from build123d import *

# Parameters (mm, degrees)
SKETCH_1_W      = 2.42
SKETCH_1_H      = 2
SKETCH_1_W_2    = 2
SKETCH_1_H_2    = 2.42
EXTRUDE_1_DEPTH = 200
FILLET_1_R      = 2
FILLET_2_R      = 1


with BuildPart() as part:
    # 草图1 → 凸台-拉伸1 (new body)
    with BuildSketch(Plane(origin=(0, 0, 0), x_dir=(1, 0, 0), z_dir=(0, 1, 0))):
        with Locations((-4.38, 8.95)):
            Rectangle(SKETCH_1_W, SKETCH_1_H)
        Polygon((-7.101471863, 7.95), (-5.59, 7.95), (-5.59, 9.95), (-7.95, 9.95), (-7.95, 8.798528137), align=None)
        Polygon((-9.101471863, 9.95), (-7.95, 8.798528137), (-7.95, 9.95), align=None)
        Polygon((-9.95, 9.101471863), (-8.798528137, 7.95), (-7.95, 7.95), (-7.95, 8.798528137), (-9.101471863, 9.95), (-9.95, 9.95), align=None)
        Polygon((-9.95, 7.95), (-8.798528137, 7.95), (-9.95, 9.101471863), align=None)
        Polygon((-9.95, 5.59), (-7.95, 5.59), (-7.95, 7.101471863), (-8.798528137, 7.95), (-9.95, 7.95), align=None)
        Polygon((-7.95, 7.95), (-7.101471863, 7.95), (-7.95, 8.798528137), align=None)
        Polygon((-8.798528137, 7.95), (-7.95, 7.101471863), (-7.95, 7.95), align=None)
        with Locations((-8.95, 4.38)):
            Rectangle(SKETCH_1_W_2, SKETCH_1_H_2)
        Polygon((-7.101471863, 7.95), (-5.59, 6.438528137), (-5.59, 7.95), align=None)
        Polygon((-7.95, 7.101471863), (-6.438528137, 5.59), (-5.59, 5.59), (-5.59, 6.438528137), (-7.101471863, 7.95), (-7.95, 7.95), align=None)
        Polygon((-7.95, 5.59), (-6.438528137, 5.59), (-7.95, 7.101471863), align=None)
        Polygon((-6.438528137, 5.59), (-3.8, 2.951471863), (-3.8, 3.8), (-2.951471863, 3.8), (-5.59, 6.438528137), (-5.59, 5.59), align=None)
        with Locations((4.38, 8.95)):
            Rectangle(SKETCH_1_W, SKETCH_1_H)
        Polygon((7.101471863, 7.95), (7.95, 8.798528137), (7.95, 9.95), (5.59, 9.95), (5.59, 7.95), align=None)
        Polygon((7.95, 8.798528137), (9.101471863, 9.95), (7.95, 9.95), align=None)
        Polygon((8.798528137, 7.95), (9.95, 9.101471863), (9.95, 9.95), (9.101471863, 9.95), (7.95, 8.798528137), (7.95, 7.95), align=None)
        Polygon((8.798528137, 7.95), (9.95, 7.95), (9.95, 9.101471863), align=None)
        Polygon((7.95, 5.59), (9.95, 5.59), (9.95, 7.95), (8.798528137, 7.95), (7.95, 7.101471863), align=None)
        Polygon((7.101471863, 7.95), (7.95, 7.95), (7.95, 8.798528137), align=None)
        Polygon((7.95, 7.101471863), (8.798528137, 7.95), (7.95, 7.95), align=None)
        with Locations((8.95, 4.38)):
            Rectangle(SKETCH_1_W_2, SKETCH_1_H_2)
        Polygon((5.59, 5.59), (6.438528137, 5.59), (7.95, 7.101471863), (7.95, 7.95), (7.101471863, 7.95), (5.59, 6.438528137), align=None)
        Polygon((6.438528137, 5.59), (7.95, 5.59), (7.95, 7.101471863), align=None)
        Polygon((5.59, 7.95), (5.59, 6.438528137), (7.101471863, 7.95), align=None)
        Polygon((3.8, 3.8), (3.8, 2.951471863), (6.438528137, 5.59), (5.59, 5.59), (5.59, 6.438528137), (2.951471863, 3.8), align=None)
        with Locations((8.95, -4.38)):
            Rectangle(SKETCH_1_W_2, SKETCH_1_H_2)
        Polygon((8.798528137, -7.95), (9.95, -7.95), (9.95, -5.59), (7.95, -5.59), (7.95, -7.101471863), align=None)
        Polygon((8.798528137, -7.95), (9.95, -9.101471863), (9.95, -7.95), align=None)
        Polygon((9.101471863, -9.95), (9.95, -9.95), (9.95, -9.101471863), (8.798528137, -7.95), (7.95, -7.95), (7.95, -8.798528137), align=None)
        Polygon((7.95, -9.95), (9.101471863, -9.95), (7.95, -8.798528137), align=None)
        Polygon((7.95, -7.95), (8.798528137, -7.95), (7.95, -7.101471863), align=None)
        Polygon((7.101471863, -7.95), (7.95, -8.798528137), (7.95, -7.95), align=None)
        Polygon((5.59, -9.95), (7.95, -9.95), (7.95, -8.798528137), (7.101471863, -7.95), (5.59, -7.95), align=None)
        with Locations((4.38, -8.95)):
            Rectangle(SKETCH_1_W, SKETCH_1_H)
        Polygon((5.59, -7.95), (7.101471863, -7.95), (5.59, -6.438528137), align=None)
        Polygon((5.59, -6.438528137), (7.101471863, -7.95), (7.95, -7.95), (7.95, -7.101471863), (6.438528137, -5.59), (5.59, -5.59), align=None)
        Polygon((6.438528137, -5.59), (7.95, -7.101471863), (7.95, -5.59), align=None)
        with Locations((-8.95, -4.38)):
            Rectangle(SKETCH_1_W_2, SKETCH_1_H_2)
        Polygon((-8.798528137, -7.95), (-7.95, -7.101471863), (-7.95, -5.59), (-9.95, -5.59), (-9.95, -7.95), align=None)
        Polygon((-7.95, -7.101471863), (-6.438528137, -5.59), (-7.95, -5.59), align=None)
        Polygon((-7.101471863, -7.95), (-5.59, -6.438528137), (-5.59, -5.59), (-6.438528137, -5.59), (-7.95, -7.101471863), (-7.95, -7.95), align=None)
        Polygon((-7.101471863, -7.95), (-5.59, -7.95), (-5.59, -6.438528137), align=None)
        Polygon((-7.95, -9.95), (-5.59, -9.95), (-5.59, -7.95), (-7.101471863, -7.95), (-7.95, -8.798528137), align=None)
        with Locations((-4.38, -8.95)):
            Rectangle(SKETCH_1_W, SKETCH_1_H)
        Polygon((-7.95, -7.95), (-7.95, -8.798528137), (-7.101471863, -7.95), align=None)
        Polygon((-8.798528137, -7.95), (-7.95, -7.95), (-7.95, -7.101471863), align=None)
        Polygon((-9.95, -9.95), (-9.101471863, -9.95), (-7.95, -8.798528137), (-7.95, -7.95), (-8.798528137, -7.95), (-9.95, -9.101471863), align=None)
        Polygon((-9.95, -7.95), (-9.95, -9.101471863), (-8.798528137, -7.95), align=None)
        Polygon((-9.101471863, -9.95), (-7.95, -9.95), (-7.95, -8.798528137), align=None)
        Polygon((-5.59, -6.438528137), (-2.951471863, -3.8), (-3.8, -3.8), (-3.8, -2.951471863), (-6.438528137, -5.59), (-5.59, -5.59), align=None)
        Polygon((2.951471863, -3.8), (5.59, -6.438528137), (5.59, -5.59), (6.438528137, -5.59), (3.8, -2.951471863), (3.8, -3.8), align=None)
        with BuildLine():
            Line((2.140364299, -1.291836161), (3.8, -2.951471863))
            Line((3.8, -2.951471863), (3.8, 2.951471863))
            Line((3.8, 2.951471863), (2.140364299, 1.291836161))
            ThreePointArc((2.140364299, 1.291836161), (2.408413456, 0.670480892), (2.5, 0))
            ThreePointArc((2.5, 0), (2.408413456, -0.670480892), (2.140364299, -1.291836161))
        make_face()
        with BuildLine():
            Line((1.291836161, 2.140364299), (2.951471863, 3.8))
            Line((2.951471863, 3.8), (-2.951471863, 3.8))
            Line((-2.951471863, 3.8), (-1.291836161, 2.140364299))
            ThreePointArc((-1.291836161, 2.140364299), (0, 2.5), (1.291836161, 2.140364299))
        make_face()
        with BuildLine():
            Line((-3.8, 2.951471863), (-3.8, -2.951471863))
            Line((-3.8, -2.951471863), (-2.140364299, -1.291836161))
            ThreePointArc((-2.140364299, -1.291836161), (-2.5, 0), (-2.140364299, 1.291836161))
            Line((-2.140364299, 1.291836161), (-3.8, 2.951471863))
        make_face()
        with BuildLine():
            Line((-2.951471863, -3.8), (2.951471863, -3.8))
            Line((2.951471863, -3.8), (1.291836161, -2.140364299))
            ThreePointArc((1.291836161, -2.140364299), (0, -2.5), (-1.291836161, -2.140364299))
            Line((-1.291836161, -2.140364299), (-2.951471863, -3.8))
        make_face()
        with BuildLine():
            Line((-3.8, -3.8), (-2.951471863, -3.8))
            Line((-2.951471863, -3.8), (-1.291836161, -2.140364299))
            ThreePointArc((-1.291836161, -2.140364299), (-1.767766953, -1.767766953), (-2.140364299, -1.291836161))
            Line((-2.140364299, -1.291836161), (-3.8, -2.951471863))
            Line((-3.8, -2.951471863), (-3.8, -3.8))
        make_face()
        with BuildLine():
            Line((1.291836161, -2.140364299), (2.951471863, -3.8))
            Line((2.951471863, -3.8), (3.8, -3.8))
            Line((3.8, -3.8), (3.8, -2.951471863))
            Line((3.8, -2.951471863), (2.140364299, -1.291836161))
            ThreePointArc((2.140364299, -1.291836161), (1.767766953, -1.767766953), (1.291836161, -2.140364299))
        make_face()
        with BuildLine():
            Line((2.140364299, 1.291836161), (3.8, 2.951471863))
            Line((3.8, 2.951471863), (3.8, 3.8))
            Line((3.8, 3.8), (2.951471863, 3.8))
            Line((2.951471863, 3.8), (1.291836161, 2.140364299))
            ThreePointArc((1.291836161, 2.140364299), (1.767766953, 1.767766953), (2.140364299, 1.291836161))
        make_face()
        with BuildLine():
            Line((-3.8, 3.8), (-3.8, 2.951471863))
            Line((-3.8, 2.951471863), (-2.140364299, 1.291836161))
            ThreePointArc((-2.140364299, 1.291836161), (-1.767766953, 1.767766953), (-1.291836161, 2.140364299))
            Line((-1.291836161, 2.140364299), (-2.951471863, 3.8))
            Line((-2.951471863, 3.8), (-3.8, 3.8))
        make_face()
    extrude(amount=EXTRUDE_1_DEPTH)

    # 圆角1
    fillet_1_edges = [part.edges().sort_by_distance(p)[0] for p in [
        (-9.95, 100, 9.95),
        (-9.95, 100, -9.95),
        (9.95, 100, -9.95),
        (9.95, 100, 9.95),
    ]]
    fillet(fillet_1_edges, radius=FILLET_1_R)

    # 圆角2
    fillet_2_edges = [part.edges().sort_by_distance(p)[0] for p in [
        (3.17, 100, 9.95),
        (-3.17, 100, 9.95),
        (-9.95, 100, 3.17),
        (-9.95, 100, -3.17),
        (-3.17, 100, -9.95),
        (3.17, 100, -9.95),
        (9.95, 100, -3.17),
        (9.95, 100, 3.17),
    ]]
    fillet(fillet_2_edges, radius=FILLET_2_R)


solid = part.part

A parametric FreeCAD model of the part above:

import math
import FreeCAD as App
import Part
import Sketcher
from FreeCAD import Vector


def edges_at(feature, points):
    """Names of the edges that pass closest to the given points."""
    edges = feature.Shape.Edges
    near = lambda p: min(range(len(edges)), key=lambda i: edges[i].distToShape(Part.Vertex(*p))[0])
    return sorted({f"Edge{near(p) + 1}" for p in points})

doc = App.newDocument("Part")
body = doc.addObject("PartDesign::Body", "Body")

# Sketch on XZ plane
sketch1 = body.newObject("Sketcher::SketchObject", "Sketch")
sketch1.AttachmentSupport = (doc.getObject("XZ_Plane"), [""])
sketch1.MapMode = "FlatFace"
sketch1.addGeometry([
    Part.LineSegment(Vector(-3.2, -8, 0), Vector(-3.2, -9.9, 0)),  # 0
    Part.LineSegment(Vector(-3.2, -9.9, 0), Vector(-9.9, -9.9, 0)),  # 1
    Part.LineSegment(Vector(-9.9, -9.9, 0), Vector(-9.9, -3.2, 0)),  # 2
    Part.LineSegment(Vector(-9.9, -3.2, 0), Vector(-8, -3.2, 0)),  # 3
    Part.LineSegment(Vector(-8, -3.2, 0), Vector(-8, -5.6, 0)),  # 4
    Part.LineSegment(Vector(-8, -5.6, 0), Vector(-6.4, -5.6, 0)),  # 5
    Part.LineSegment(Vector(-6.4, -5.6, 0), Vector(-3.8, -3, 0)),  # 6
    Part.LineSegment(Vector(-3.8, -3, 0), Vector(-3.8, 3, 0)),  # 7
    Part.LineSegment(Vector(-3.8, 3, 0), Vector(-6.4, 5.6, 0)),  # 8
    Part.LineSegment(Vector(-6.4, 5.6, 0), Vector(-8, 5.6, 0)),  # 9
    Part.LineSegment(Vector(-8, 5.6, 0), Vector(-8, 3.2, 0)),  # 10
    Part.LineSegment(Vector(-8, 3.2, 0), Vector(-9.9, 3.2, 0)),  # 11
    Part.LineSegment(Vector(-9.9, 3.2, 0), Vector(-9.9, 9.9, 0)),  # 12
    Part.LineSegment(Vector(-9.9, 9.9, 0), Vector(-3.2, 9.9, 0)),  # 13
    Part.LineSegment(Vector(-3.2, 9.9, 0), Vector(-3.2, 8, 0)),  # 14
    Part.LineSegment(Vector(-3.2, 8, 0), Vector(-5.6, 8, 0)),  # 15
    Part.LineSegment(Vector(-5.6, 8, 0), Vector(-5.6, 6.4, 0)),  # 16
    Part.LineSegment(Vector(-5.6, 6.4, 0), Vector(-3, 3.8, 0)),  # 17
    Part.LineSegment(Vector(-3, 3.8, 0), Vector(3, 3.8, 0)),  # 18
    Part.LineSegment(Vector(3, 3.8, 0), Vector(5.6, 6.4, 0)),  # 19
    Part.LineSegment(Vector(5.6, 6.4, 0), Vector(5.6, 8, 0)),  # 20
    Part.LineSegment(Vector(5.6, 8, 0), Vector(3.2, 8, 0)),  # 21
    Part.LineSegment(Vector(3.2, 8, 0), Vector(3.2, 9.9, 0)),  # 22
    Part.LineSegment(Vector(3.2, 9.9, 0), Vector(9.9, 9.9, 0)),  # 23
    Part.LineSegment(Vector(9.9, 9.9, 0), Vector(9.9, 3.2, 0)),  # 24
    Part.LineSegment(Vector(9.9, 3.2, 0), Vector(8, 3.2, 0)),  # 25
    Part.LineSegment(Vector(8, 3.2, 0), Vector(8, 5.6, 0)),  # 26
    Part.LineSegment(Vector(8, 5.6, 0), Vector(6.4, 5.6, 0)),  # 27
    Part.LineSegment(Vector(6.4, 5.6, 0), Vector(3.8, 3, 0)),  # 28
    Part.LineSegment(Vector(3.8, 3, 0), Vector(3.8, -3, 0)),  # 29
    Part.LineSegment(Vector(3.8, -3, 0), Vector(6.4, -5.6, 0)),  # 30
    Part.LineSegment(Vector(6.4, -5.6, 0), Vector(8, -5.6, 0)),  # 31
    Part.LineSegment(Vector(8, -5.6, 0), Vector(8, -3.2, 0)),  # 32
    Part.LineSegment(Vector(8, -3.2, 0), Vector(9.9, -3.2, 0)),  # 33
    Part.LineSegment(Vector(9.9, -3.2, 0), Vector(9.9, -9.9, 0)),  # 34
    Part.LineSegment(Vector(9.9, -9.9, 0), Vector(3.2, -9.9, 0)),  # 35
    Part.LineSegment(Vector(3.2, -9.9, 0), Vector(3.2, -8, 0)),  # 36
    Part.LineSegment(Vector(3.2, -8, 0), Vector(5.6, -8, 0)),  # 37
    Part.LineSegment(Vector(5.6, -8, 0), Vector(5.6, -6.4, 0)),  # 38
    Part.LineSegment(Vector(5.6, -6.4, 0), Vector(3, -3.8, 0)),  # 39
    Part.LineSegment(Vector(3, -3.8, 0), Vector(-3, -3.8, 0)),  # 40
    Part.LineSegment(Vector(-3, -3.8, 0), Vector(-5.6, -6.4, 0)),  # 41
    Part.LineSegment(Vector(-5.6, -6.4, 0), Vector(-5.6, -8, 0)),  # 42
    Part.LineSegment(Vector(-5.6, -8, 0), Vector(-3.2, -8, 0)),  # 43
    Part.ArcOfCircle(Part.Circle(Vector(0, 0, 0), Vector(0, 0, 1), 2.5), math.radians(-149), math.radians(-121)),  # 44
    Part.ArcOfCircle(Part.Circle(Vector(0, 0, 0), Vector(0, 0, 1), 2.5), math.radians(-121), math.radians(-59)),  # 45
    Part.ArcOfCircle(Part.Circle(Vector(0, 0, 0), Vector(0, 0, 1), 2.5), math.radians(-59), math.radians(-31)),  # 46
    Part.ArcOfCircle(Part.Circle(Vector(0, 0, 0), Vector(0, 0, 1), 2.5), math.radians(-31), math.radians(0)),  # 47
    Part.ArcOfCircle(Part.Circle(Vector(0, 0, 0), Vector(0, 0, 1), 2.5), math.radians(0), math.radians(31)),  # 48
    Part.ArcOfCircle(Part.Circle(Vector(0, 0, 0), Vector(0, 0, 1), 2.5), math.radians(31), math.radians(59)),  # 49
    Part.ArcOfCircle(Part.Circle(Vector(0, 0, 0), Vector(0, 0, 1), 2.5), math.radians(59), math.radians(121)),  # 50
    Part.ArcOfCircle(Part.Circle(Vector(0, 0, 0), Vector(0, 0, 1), 2.5), math.radians(121), math.radians(149)),  # 51
    Part.ArcOfCircle(Part.Circle(Vector(0, 0, 0), Vector(0, 0, 1), 2.5), math.radians(149), math.radians(211)),  # 52
], False)
sketch1.addConstraint([
    Sketcher.Constraint("Coincident", 0, 2, 1, 1),
    Sketcher.Constraint("Coincident", 1, 2, 2, 1),
    Sketcher.Constraint("Coincident", 2, 2, 3, 1),
    Sketcher.Constraint("Coincident", 3, 2, 4, 1),
    Sketcher.Constraint("Coincident", 4, 2, 5, 1),
    Sketcher.Constraint("Coincident", 5, 2, 6, 1),
    Sketcher.Constraint("Coincident", 6, 2, 7, 1),
    Sketcher.Constraint("Coincident", 7, 2, 8, 1),
    Sketcher.Constraint("Coincident", 8, 2, 9, 1),
    Sketcher.Constraint("Coincident", 9, 2, 10, 1),
    Sketcher.Constraint("Coincident", 10, 2, 11, 1),
    Sketcher.Constraint("Coincident", 11, 2, 12, 1),
    Sketcher.Constraint("Coincident", 12, 2, 13, 1),
    Sketcher.Constraint("Coincident", 13, 2, 14, 1),
    Sketcher.Constraint("Coincident", 14, 2, 15, 1),
    Sketcher.Constraint("Coincident", 15, 2, 16, 1),
    Sketcher.Constraint("Coincident", 16, 2, 17, 1),
    Sketcher.Constraint("Coincident", 17, 2, 18, 1),
    Sketcher.Constraint("Coincident", 18, 2, 19, 1),
    Sketcher.Constraint("Coincident", 19, 2, 20, 1),
    Sketcher.Constraint("Coincident", 20, 2, 21, 1),
    Sketcher.Constraint("Coincident", 21, 2, 22, 1),
    Sketcher.Constraint("Coincident", 22, 2, 23, 1),
    Sketcher.Constraint("Coincident", 23, 2, 24, 1),
    Sketcher.Constraint("Coincident", 24, 2, 25, 1),
    Sketcher.Constraint("Coincident", 25, 2, 26, 1),
    Sketcher.Constraint("Coincident", 26, 2, 27, 1),
    Sketcher.Constraint("Coincident", 27, 2, 28, 1),
    Sketcher.Constraint("Coincident", 28, 2, 29, 1),
    Sketcher.Constraint("Coincident", 29, 2, 30, 1),
    Sketcher.Constraint("Coincident", 30, 2, 31, 1),
    Sketcher.Constraint("Coincident", 31, 2, 32, 1),
    Sketcher.Constraint("Coincident", 32, 2, 33, 1),
    Sketcher.Constraint("Coincident", 33, 2, 34, 1),
    Sketcher.Constraint("Coincident", 34, 2, 35, 1),
    Sketcher.Constraint("Coincident", 35, 2, 36, 1),
    Sketcher.Constraint("Coincident", 36, 2, 37, 1),
    Sketcher.Constraint("Coincident", 37, 2, 38, 1),
    Sketcher.Constraint("Coincident", 38, 2, 39, 1),
    Sketcher.Constraint("Coincident", 39, 2, 40, 1),
    Sketcher.Constraint("Coincident", 40, 2, 41, 1),
    Sketcher.Constraint("Coincident", 41, 2, 42, 1),
    Sketcher.Constraint("Coincident", 42, 2, 43, 1),
    Sketcher.Constraint("Coincident", 43, 2, 0, 1),
    Sketcher.Constraint("Tangent", 44, 2, 45, 1),
    Sketcher.Constraint("Tangent", 45, 2, 46, 1),
    Sketcher.Constraint("Tangent", 46, 2, 47, 1),
    Sketcher.Constraint("Tangent", 47, 2, 48, 1),
    Sketcher.Constraint("Tangent", 48, 2, 49, 1),
    Sketcher.Constraint("Tangent", 49, 2, 50, 1),
    Sketcher.Constraint("Tangent", 50, 2, 51, 1),
    Sketcher.Constraint("Tangent", 51, 2, 52, 1),
    Sketcher.Constraint("Tangent", 52, 2, 44, 1),
    Sketcher.Constraint("Vertical", 0),
    Sketcher.Constraint("Horizontal", 1),
    Sketcher.Constraint("Vertical", 2),
    Sketcher.Constraint("Horizontal", 3),
    Sketcher.Constraint("Vertical", 4),
    Sketcher.Constraint("Horizontal", 5),
    Sketcher.Constraint("Vertical", 7),
    Sketcher.Constraint("Horizontal", 9),
    Sketcher.Constraint("Vertical", 10),
    Sketcher.Constraint("Horizontal", 11),
    Sketcher.Constraint("Vertical", 12),
    Sketcher.Constraint("Horizontal", 13),
    Sketcher.Constraint("Vertical", 14),
    Sketcher.Constraint("Horizontal", 15),
    Sketcher.Constraint("Vertical", 16),
    Sketcher.Constraint("Horizontal", 18),
    Sketcher.Constraint("Vertical", 20),
    Sketcher.Constraint("Horizontal", 21),
    Sketcher.Constraint("Vertical", 22),
    Sketcher.Constraint("Horizontal", 23),
    Sketcher.Constraint("Vertical", 24),
    Sketcher.Constraint("Horizontal", 25),
    Sketcher.Constraint("Vertical", 26),
    Sketcher.Constraint("Horizontal", 27),
    Sketcher.Constraint("Vertical", 29),
    Sketcher.Constraint("Horizontal", 31),
    Sketcher.Constraint("Vertical", 32),
    Sketcher.Constraint("Horizontal", 33),
    Sketcher.Constraint("Vertical", 34),
    Sketcher.Constraint("Horizontal", 35),
    Sketcher.Constraint("Vertical", 36),
    Sketcher.Constraint("Horizontal", 37),
    Sketcher.Constraint("Vertical", 38),
    Sketcher.Constraint("Horizontal", 40),
    Sketcher.Constraint("Vertical", 42),
    Sketcher.Constraint("Horizontal", 43),
    Sketcher.Constraint("Coincident", 44, 3, -1, 1),
    Sketcher.Constraint("Coincident", 46, 3, -1, 1),
    Sketcher.Constraint("Coincident", 48, 3, -1, 1),
    Sketcher.Constraint("Coincident", 50, 3, -1, 1),
    Sketcher.Constraint("Symmetric", 0, 2, 22, 2, -1, 1),
    Sketcher.Constraint("Symmetric", 2, 2, 24, 2, -1, 1),
    Sketcher.Constraint("Symmetric", 4, 2, 26, 2, -1, 1),
    Sketcher.Constraint("Symmetric", 6, 2, 28, 2, -1, 1),
    Sketcher.Constraint("Symmetric", 8, 2, 30, 2, -1, 1),
    Sketcher.Constraint("Symmetric", 10, 2, 32, 2, -1, 1),
    Sketcher.Constraint("Symmetric", 12, 2, 34, 2, -1, 1),
    Sketcher.Constraint("Symmetric", 14, 2, 36, 2, -1, 1),
    Sketcher.Constraint("Symmetric", 16, 2, 38, 2, -1, 1),
    Sketcher.Constraint("Symmetric", 17, 2, 39, 2, -1, 1),
    Sketcher.Constraint("Symmetric", 19, 2, 41, 2, -1, 1),
    Sketcher.Constraint("Symmetric", 16, 2, 19, 2, -2),
    Sketcher.Constraint("Symmetric", 14, 2, 21, 2, -2),
    Sketcher.Constraint("Symmetric", 12, 2, 23, 2, -2),
    Sketcher.Constraint("Symmetric", 10, 2, 25, 2, -2),
    Sketcher.Constraint("Symmetric", 8, 2, 27, 2, -2),
    Sketcher.Constraint("PointOnObject", 47, 2, -1),
    Sketcher.Constraint("Perpendicular", 6, 8),
    Sketcher.Constraint("Parallel", 8, 17),
    Sketcher.Constraint("Perpendicular", 17, 19),
    Sketcher.Constraint("Parallel", 19, 28),
    Sketcher.Constraint("Perpendicular", 28, 30),
    Sketcher.Constraint("Perpendicular", 39, 41),
    Sketcher.Constraint("Horizontal", 7, 2, 28, 2),
    Sketcher.Constraint("Horizontal", 37, 2, 42, 2),
    Sketcher.Constraint("Horizontal", 44, 2, 45, 2),
    Sketcher.Constraint("Horizontal", 49, 2, 50, 2),
    Sketcher.Constraint("Horizontal", 48, 2, 51, 2),
    Sketcher.Constraint("Horizontal", 46, 2, 52, 2),
    Sketcher.Constraint("Vertical", 46, 2, 48, 2),
    Sketcher.Constraint("Vertical", 45, 2, 49, 2),
    Sketcher.Constraint("Equal", 33, 0),
    Sketcher.Constraint("Equal", 35, 2),
    Sketcher.Constraint("Equal", 43, 4),
    Sketcher.Constraint("Equal", 40, 7),
    Sketcher.Constraint("Equal", 31, 16),
    Sketcher.Constraint("Equal", 8, 17),
    Sketcher.Constraint("Radius", 44, 2.5),
    Sketcher.Constraint("DistanceX", 3, 1, 3, 2, 2.0),
    Sketcher.Constraint("DistanceX", 1, 2, 1, 1, 6.78),
    Sketcher.Constraint("DistanceX", 15, 2, 15, 1, 2.42),
    Sketcher.Constraint("DistanceX", 6, 2, -1, 1, 3.8),
    Sketcher.Constraint("DistanceX", 0, 2, -1, 1, 3.17),
    Sketcher.Constraint("DistanceX", 5, 1, 5, 2, 1.511472),
    Sketcher.Constraint("DistanceX", 44, 2, -1, 1, 1.291836),
    Sketcher.Constraint("DistanceX", -1, 1, 46, 2, 2.140364),
])
pad1 = body.newObject("PartDesign::Pad", "Pad")
pad1.Profile = sketch1
pad1.Length = 200
pad1.Reversed = True
doc.recompute()

fillet = body.newObject("PartDesign::Fillet", "Fillet")
fillet.Base = (pad1, edges_at(pad1, [
    (-9.95, 100, 9.95),
    (-9.95, 100, -9.95),
    (9.95, 100, -9.95),
    (9.95, 100, 9.95),
]))
fillet.Radius = 2
doc.recompute()

fillet2 = body.newObject("PartDesign::Fillet", "Fillet001")
fillet2.Base = (fillet, edges_at(fillet, [
    (3.17, 100, 9.95),
    (-3.17, 100, 9.95),
    (-9.95, 100, 3.17),
    (-9.95, 100, -3.17),
    (-3.17, 100, -9.95),
    (3.17, 100, -9.95),
    (9.95, 100, -3.17),
    (9.95, 100, 3.17),
]))
fillet2.Radius = 1

doc.recompute()
